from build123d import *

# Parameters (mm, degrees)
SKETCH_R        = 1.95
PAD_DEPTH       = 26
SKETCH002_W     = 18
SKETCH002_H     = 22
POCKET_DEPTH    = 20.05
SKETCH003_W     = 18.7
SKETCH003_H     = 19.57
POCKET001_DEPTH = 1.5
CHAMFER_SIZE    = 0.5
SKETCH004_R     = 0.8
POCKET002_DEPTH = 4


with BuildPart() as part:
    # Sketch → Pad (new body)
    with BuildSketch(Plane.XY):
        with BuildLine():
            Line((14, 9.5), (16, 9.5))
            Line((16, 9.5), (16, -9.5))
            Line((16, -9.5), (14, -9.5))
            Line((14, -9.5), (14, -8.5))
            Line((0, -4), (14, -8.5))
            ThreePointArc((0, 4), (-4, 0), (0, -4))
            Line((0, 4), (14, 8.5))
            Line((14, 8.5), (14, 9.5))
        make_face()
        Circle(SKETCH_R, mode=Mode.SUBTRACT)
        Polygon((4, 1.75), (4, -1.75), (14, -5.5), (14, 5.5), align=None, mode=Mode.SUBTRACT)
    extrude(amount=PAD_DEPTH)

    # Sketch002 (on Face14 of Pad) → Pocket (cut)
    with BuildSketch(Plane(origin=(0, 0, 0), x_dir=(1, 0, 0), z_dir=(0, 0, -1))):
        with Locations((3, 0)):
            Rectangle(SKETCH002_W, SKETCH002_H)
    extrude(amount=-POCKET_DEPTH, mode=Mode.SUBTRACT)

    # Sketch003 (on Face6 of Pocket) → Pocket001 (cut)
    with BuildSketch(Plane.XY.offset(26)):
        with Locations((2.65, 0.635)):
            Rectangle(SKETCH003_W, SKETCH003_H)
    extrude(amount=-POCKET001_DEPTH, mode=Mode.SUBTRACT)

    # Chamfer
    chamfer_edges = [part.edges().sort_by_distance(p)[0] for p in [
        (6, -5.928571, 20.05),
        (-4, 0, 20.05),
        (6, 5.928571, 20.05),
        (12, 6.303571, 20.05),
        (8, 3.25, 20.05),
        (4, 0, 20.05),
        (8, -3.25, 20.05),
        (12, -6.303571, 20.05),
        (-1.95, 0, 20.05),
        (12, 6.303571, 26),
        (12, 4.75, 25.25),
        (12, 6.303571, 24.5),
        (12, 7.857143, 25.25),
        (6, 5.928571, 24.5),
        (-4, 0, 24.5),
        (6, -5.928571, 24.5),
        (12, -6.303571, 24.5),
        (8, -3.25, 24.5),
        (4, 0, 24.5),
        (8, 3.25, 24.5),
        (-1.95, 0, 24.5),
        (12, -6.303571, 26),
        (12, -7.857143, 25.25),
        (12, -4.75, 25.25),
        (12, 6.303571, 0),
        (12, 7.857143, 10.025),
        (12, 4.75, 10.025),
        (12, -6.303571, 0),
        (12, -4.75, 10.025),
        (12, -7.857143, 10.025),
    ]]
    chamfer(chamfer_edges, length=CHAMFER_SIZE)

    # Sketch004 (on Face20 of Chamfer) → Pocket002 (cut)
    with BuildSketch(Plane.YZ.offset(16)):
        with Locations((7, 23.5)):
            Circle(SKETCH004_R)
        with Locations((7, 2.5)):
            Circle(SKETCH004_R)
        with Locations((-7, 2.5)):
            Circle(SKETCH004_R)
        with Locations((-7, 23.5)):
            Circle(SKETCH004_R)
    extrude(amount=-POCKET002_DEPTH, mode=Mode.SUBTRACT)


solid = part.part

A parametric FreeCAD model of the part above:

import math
import FreeCAD as App
import Part
import Sketcher

V = App.Vector
Q = App.Units.Quantity


def edges_at(feature, points):
    """Names of the edges that pass closest to the given points."""
    edges = feature.Shape.Edges
    near = lambda p: min(range(len(edges)), key=lambda i: edges[i].distToShape(Part.Vertex(*p))[0])
    return sorted({f"Edge{near(p) + 1}" for p in points})


def add_polygon(sketch, points):
    """Adds a closed chain of lines whose ends are joined by coincident constraints."""
    first, n = sketch.GeometryCount, len(points)
    for a, b in zip(points, points[1:] + points[:1]):
        sketch.addGeometry(Part.LineSegment(App.Vector(*a, 0), App.Vector(*b, 0)), False)
    for i in range(n):
        sketch.addConstraint(Sketcher.Constraint("Coincident", first + i, 2, first + (i + 1) % n, 1))

doc = App.newDocument("Part")
params = doc.addObject("Spreadsheet::Sheet", "Params")
for row, (alias, value) in enumerate([
    ("sketch1_radius", "4 mm"),
    ("sketch1_diameter", "3.9 mm"),
    ("sketch1_width", "2 mm"),
    ("sketch1_height", "1 mm"),
    ("sketch1_height2", "19 mm"),
    ("pad1_length", "26 mm"),
    ("sketch2_width", "18 mm"),
    ("sketch2_height", "22 mm"),
    ("pocket1_length", "20.05 mm"),
    ("sketch3_width", "18.7 mm"),
    ("sketch3_height", "19.57 mm"),
    ("pocket2_length", "1.5 mm"),
    ("chamfer_size", "0.5 mm"),
    ("sketch4_diameter", "1.6 mm"),
    ("pocket3_length", "4 mm"),
], start=1):
    params.set(f"A{row}", alias)
    params.set(f"B{row}", "=" + value)
    params.setAlias(f"B{row}", alias)

body = doc.addObject("PartDesign::Body", "Body")

# Sketch on XY plane
sketch1 = body.newObject("Sketcher::SketchObject", "Sketch")
sketch1.AttachmentSupport = (doc.getObject("XY_Plane"), [""])
sketch1.MapMode = "FlatFace"
sketch1.addGeometry(Part.LineSegment(V(16, 9.5, 0), V(14, 9.5, 0)), False)  # 0
sketch1.addGeometry(Part.LineSegment(V(14, 9.5, 0), V(14, 8.5, 0)), False)  # 1
sketch1.addGeometry(Part.LineSegment(V(14, 8.5, 0), V(0, 4, 0)), False)  # 2
sketch1.addGeometry(Part.ArcOfCircle(Part.Circle(V(0, 0, 0), V(0, 0, 1), 4), math.radians(90), math.radians(270)), False)  # 3
sketch1.addGeometry(Part.LineSegment(V(0, -4, 0), V(14, -8.5, 0)), False)  # 4
sketch1.addGeometry(Part.LineSegment(V(14, -8.5, 0), V(14, -9.5, 0)), False)  # 5
sketch1.addGeometry(Part.LineSegment(V(14, -9.5, 0), V(16, -9.5, 0)), False)  # 6
sketch1.addGeometry(Part.LineSegment(V(16, -9.5, 0), V(16, 9.5, 0)), False)  # 7
add_polygon(sketch1, [(4, 1.75), (14, 5.5), (14, -5.5), (4, -1.75)])  # lines 8-11
sketch1.addGeometry(Part.Circle(V(0, 0, 0), V(0, 0, 1), 1.95), False)  # 12
sketch1.addConstraint([
    Sketcher.Constraint("Coincident", 0, 2, 1, 1),
    Sketcher.Constraint("Coincident", 1, 2, 2, 1),
    Sketcher.Constraint("Coincident", 2, 2, 3, 1),
    Sketcher.Constraint("Coincident", 3, 2, 4, 1),
    Sketcher.Constraint("Coincident", 4, 2, 5, 1),
    Sketcher.Constraint("Coincident", 5, 2, 6, 1),
    Sketcher.Constraint("Coincident", 6, 2, 7, 1),
    Sketcher.Constraint("Coincident", 7, 2, 0, 1),
    Sketcher.Constraint("Horizontal", 0),
    Sketcher.Constraint("Vertical", 1),
    Sketcher.Constraint("Vertical", 5),
    Sketcher.Constraint("Horizontal", 6),
    Sketcher.Constraint("Vertical", 7),
    Sketcher.Constraint("Vertical", 9),
    Sketcher.Constraint("Vertical", 11),
    Sketcher.Constraint("Coincident", 3, 3, -1, 1),
    Sketcher.Constraint("Coincident", 12, 3, -1, 1),
    Sketcher.Constraint("Symmetric", 1, 2, 4, 2, -1),
    Sketcher.Constraint("PointOnObject", 2, 2, -2),
    Sketcher.Constraint("PointOnObject", 3, 2, -2),
    Sketcher.Constraint("Vertical", 5, 2, 8, 2),
    Sketcher.Constraint("Equal", 1, 5),
    Sketcher.Constraint("Equal", 8, 10),
    Sketcher.Constraint("Radius", 3, Q("4 mm")),
    Sketcher.Constraint("Diameter", 12, Q("3.9 mm")),
    Sketcher.Constraint("DistanceX", 0, 2, 0, 1, Q("2 mm")),
    Sketcher.Constraint("DistanceY", 1, 2, 1, 1, Q("1 mm")),
    Sketcher.Constraint("DistanceY", 7, 1, 7, 2, Q("19 mm")),
    Sketcher.Constraint("DistanceY", 9, 2, 9, 1, Q("11 mm")),
    Sketcher.Constraint("DistanceY", 11, 1, 11, 2, Q("3.5 mm")),
    Sketcher.Constraint("DistanceX", -1, 1, 0, 2, Q("14 mm")),
    Sketcher.Constraint("DistanceX", -1, 1, 10, 2, Q("4 mm")),
    Sketcher.Constraint("DistanceY", 8, 2, 1, 2, Q("3 mm")),
])
sketch1.setExpression("Constraints[27]", "Params.sketch1_radius")
sketch1.setExpression("Constraints[28]", "Params.sketch1_diameter")
sketch1.setExpression("Constraints[29]", "Params.sketch1_width")
sketch1.setExpression("Constraints[30]", "Params.sketch1_height")
sketch1.setExpression("Constraints[31]", "Params.sketch1_height2")
pad1 = body.newObject("PartDesign::Pad", "Pad")
pad1.Profile = sketch1
pad1.setExpression("Length", "Params.pad1_length")

# Sketch on XY plane
sketch2 = body.newObject("Sketcher::SketchObject", "Sketch001")
sketch2.AttachmentSupport = (doc.getObject("XY_Plane"), [""])
sketch2.MapMode = "FlatFace"
add_polygon(sketch2, [(-6, -11), (-6, 11), (12, 11), (12, -11)])  # lines 0-3
sketch2.addConstraint([
    Sketcher.Constraint("Vertical", 0),
    Sketcher.Constraint("Horizontal", 1),
    Sketcher.Constraint("Vertical", 2),
    Sketcher.Constraint("Horizontal", 3),
    Sketcher.Constraint("DistanceX", 1, 1, 1, 2, Q("18 mm")),
    Sketcher.Constraint("DistanceY", 0, 1, 0, 2, Q("22 mm")),
    Sketcher.Constraint("DistanceX", 0, 2, -1, 1, Q("6 mm")),
    Sketcher.Constraint("DistanceY", -1, 1, 0, 2, Q("11 mm")),
])
sketch2.setExpression("Constraints[8]", "Params.sketch2_width")
sketch2.setExpression("Constraints[9]", "Params.sketch2_height")
pocket1 = body.newObject("PartDesign::Pocket", "Pocket")
pocket1.Profile = sketch2
pocket1.setExpression("Length", "Params.pocket1_length")
pocket1.Reversed = True

# Sketch on XY plane
sketch3 = body.newObject("Sketcher::SketchObject", "Sketch002")
sketch3.AttachmentSupport = (doc.getObject("XY_Plane"), [""])
sketch3.MapMode = "FlatFace"
sketch3.AttachmentOffset = App.Placement(V(0, 0, 26), App.Rotation())
add_polygon(sketch3, [(-6.7, 10.42), (-6.7, -9.15), (12, -9.15), (12, 10.42)])  # lines 0-3
sketch3.addConstraint([
    Sketcher.Constraint("Vertical", 0),
    Sketcher.Constraint("Horizontal", 1),
    Sketcher.Constraint("Vertical", 2),
    Sketcher.Constraint("Horizontal", 3),
    Sketcher.Constraint("DistanceX", 1, 1, 1, 2, Q("18.7 mm")),
    Sketcher.Constraint("DistanceX", -1, 1, 1, 2, Q("12 mm")),
    Sketcher.Constraint("DistanceY", 0, 2, 0, 1, Q("19.57 mm")),
    Sketcher.Constraint("DistanceY", 0, 2, -1, 1, Q("9.15 mm")),
])
sketch3.setExpression("Constraints[8]", "Params.sketch3_width")
sketch3.setExpression("Constraints[10]", "Params.sketch3_height")
pocket2 = body.newObject("PartDesign::Pocket", "Pocket001")
pocket2.Profile = sketch3
pocket2.setExpression("Length", "Params.pocket2_length")
doc.recompute()

chamfer = body.newObject("PartDesign::Chamfer", "Chamfer")
chamfer.Base = (pocket2, edges_at(pocket2, [
    (6, -5.929, 20.05),
    (-4, 0, 20.05),
    (6, 5.929, 20.05),
    (12, 6.304, 20.05),
    (8, 3.25, 20.05),
    (4, 0, 20.05),
    (8, -3.25, 20.05),
    (12, -6.304, 20.05),
    (-1.95, 0, 20.05),
    (12, 6.304, 26),
    (12, 4.75, 25.25),
    (12, 6.304, 24.5),
    (12, 7.857, 25.25),
    (6, 5.929, 24.5),
    (-4, 0, 24.5),
    (6, -5.929, 24.5),
    (12, -6.304, 24.5),
    (8, -3.25, 24.5),
    (4, 0, 24.5),
    (8, 3.25, 24.5),
    (-1.95, 0, 24.5),
    (12, -6.304, 26),
    (12, -7.857, 25.25),
    (12, -4.75, 25.25),
    (12, 6.304, 0),
    (12, 7.857, 10.025),
    (12, 4.75, 10.025),
    (12, -6.304, 0),
    (12, -4.75, 10.025),
    (12, -7.857, 10.025),
]))
chamfer.setExpression("Size", "Params.chamfer_size")

# Sketch on YZ plane
sketch4 = body.newObject("Sketcher::SketchObject", "Sketch003")
sketch4.AttachmentSupport = (doc.getObject("YZ_Plane"), [""])
sketch4.MapMode = "FlatFace"
sketch4.AttachmentOffset = App.Placement(V(0, 0, 16), App.Rotation())
sketch4.addGeometry([
    Part.Circle(V(7, 23.5, 0), V(0, 0, 1), 0.8),
    Part.Circle(V(7, 2.5, 0), V(0, 0, 1), 0.8),
    Part.Circle(V(-7, 2.5, 0), V(0, 0, 1), 0.8),
    Part.Circle(V(-7, 23.5, 0), V(0, 0, 1), 0.8),
], False)
sketch4.addConstraint([
    Sketcher.Constraint("Equal", 0, 1),
    Sketcher.Constraint("Equal", 1, 2),
    Sketcher.Constraint("Equal", 2, 3),
    Sketcher.Constraint("Symmetric", 1, 3, 2, 3, -2),
    Sketcher.Constraint("Symmetric", 0, 3, 3, 3, -2),
    Sketcher.Constraint("Vertical", 0, 3, 1, 3),
    Sketcher.Constraint("Diameter", 0, Q("1.6 mm")),
    Sketcher.Constraint("DistanceX", -1, 1, 0, 3, Q("7 mm")),
    Sketcher.Constraint("DistanceY", 1, 3, 0, 3, Q("21 mm")),
    Sketcher.Constraint("DistanceY", -1, 1, 0, 3, Q("23.5 mm")),
])
sketch4.setExpression("Constraints[6]", "Params.sketch4_diameter")
pocket3 = body.newObject("PartDesign::Pocket", "Pocket002")
pocket3.Profile = sketch4
pocket3.setExpression("Length", "Params.pocket3_length")

doc.recompute()
